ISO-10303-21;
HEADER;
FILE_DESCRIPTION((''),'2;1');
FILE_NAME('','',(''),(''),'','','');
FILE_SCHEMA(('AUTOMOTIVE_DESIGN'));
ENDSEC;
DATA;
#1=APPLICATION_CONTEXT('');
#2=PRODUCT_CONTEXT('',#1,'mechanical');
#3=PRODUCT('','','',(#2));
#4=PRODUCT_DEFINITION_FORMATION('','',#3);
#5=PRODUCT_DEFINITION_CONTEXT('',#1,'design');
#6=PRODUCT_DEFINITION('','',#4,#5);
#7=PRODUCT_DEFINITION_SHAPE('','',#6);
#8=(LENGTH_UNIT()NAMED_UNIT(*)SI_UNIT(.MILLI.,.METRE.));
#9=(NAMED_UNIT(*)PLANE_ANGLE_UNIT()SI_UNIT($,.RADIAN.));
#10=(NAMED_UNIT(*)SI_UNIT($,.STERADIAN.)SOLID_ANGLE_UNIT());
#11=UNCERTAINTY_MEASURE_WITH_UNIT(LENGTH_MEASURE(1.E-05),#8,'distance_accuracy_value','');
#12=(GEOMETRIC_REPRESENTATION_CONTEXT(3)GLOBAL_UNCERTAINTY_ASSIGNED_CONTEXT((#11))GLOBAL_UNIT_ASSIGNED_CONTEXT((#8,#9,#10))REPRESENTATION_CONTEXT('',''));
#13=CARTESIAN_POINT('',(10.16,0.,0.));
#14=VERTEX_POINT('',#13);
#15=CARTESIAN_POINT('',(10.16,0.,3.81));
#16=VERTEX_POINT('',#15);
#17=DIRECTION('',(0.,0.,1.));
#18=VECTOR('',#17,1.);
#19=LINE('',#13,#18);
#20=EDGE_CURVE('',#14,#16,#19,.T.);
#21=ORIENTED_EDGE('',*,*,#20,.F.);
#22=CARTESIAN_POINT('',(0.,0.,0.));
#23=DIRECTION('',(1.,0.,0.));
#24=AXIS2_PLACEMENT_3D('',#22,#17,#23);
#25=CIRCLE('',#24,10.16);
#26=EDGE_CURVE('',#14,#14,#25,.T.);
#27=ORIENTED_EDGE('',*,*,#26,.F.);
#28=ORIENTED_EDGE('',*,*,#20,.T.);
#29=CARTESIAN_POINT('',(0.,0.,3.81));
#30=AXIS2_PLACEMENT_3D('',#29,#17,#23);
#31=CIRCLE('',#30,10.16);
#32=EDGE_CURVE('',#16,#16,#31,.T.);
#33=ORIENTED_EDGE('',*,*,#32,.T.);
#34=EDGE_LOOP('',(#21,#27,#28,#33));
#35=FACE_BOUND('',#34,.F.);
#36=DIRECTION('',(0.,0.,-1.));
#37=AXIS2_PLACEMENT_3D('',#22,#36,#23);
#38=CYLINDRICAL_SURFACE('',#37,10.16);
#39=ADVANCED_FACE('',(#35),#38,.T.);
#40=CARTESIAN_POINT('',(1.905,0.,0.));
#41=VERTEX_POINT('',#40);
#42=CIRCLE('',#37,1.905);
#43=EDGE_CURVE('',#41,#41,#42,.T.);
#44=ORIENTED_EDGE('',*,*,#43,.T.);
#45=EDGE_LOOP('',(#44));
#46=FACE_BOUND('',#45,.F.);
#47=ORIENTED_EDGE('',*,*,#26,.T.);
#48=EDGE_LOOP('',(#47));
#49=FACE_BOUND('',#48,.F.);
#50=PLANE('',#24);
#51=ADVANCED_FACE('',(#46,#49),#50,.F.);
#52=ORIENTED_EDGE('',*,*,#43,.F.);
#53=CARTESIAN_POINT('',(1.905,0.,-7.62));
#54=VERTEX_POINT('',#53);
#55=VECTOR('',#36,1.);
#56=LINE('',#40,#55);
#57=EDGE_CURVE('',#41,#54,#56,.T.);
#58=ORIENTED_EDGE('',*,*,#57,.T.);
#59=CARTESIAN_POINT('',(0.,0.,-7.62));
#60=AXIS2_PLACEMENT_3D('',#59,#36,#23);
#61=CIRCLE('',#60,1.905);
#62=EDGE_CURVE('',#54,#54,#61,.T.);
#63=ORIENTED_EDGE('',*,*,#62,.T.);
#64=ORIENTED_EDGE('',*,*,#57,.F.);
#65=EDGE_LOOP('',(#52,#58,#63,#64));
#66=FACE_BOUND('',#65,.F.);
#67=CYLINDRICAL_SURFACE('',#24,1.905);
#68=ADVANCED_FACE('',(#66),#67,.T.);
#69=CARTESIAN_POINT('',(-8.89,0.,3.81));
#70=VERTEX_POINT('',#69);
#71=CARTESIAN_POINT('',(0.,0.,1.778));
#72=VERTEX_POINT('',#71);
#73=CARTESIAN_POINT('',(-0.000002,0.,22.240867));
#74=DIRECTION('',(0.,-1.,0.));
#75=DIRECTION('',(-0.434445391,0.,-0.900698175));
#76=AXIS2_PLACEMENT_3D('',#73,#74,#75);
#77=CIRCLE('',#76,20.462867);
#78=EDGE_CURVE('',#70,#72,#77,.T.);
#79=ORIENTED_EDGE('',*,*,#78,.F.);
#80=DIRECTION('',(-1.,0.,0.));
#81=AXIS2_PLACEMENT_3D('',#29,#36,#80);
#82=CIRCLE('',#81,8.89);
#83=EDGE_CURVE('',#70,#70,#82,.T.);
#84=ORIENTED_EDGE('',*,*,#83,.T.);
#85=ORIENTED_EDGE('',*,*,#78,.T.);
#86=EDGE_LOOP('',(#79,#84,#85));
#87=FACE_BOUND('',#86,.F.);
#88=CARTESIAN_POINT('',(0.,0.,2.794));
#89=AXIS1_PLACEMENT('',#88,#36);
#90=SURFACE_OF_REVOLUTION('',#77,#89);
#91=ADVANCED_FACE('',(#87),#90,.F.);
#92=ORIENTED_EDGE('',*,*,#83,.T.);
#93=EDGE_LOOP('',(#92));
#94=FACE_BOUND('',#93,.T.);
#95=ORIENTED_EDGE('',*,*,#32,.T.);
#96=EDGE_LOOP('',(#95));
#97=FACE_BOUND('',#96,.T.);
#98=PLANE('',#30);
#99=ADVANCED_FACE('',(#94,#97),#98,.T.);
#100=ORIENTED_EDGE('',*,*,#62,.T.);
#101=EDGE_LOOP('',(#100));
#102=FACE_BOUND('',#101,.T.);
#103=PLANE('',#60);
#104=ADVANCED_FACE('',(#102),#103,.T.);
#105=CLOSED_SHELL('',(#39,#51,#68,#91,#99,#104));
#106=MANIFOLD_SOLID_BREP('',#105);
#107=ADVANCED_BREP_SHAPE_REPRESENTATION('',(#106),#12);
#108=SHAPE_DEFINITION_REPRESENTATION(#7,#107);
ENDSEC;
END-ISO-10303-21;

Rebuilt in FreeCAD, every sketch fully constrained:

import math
import FreeCAD as App
import Part
import Sketcher
from FreeCAD import Vector
Q = App.Units.Quantity

doc = App.newDocument("Part")
body = doc.addObject("PartDesign::Body", "Body")

sketch1 = body.newObject("Sketcher::SketchObject", "Sketch")
sketch1.AttachmentSupport = (doc.getObject("XY_Plane"), [""])
sketch1.MapMode = "FlatFace"
sketch1.addGeometry(Part.Circle(Vector(0, 0, 0), Vector(0, 0, 1), 10.16), False)
sketch1.addConstraint([
    Sketcher.Constraint("Coincident", 0, 3, -1, 1),
    Sketcher.Constraint("Diameter", 0, Q("0.8 in")),
])
pad1 = body.newObject("PartDesign::Pad", "Pad")
pad1.Profile = sketch1
pad1.Length = Q("0.15 in")

sketch2 = body.newObject("Sketcher::SketchObject", "Sketch001")
sketch2.AttachmentSupport = (doc.getObject("XZ_Plane"), [""])
sketch2.MapMode = "FlatFace"
sketch2.addGeometry([
    Part.LineSegment(Vector(0, 3.81, 0), Vector(-8.89, 3.81, 0)),
    Part.ArcOfCircle(Part.Circle(Vector(-0.000002, 22.240867, 0), Vector(0, 0, 1), 20.462867), math.radians(-115.750009), math.radians(-89.999995)),
    Part.LineSegment(Vector(0, 1.778, 0), Vector(0, 3.81, 0)),
], False)
sketch2.addConstraint([
    Sketcher.Constraint("Coincident", 0, 2, 1, 1),
    Sketcher.Constraint("Coincident", 1, 2, 2, 1),
    Sketcher.Constraint("Coincident", 2, 2, 0, 1),
    Sketcher.Constraint("Horizontal", 0),
    Sketcher.Constraint("Vertical", 2),
    Sketcher.Constraint("PointOnObject", 1, 3, -2),
    Sketcher.Constraint("PointOnObject", 1, 2, -2),
    Sketcher.Constraint("DistanceX", 0, 2, 0, 1, Q("0.35 in")),
    Sketcher.Constraint("DistanceY", 2, 1, 2, 2, Q("0.08 in")),
    Sketcher.Constraint("DistanceY", -1, 1, 0, 2, Q("0.15 in")),
])
groove = body.newObject("PartDesign::Groove", "Groove")
groove.Profile = sketch2
groove.ReferenceAxis = (sketch2, ["V_Axis"])
groove.Angle = 360

sketch3 = body.newObject("Sketcher::SketchObject", "Sketch002")
sketch3.AttachmentSupport = (doc.getObject("XY_Plane"), [""])
sketch3.MapMode = "FlatFace"
sketch3.addGeometry(Part.Circle(Vector(0, 0, 0), Vector(0, 0, 1), 1.905), False)
sketch3.addConstraint([
    Sketcher.Constraint("Coincident", 0, 3, -1, 1),
    Sketcher.Constraint("Diameter", 0, Q("0.15 in")),
])
pad2 = body.newObject("PartDesign::Pad", "Pad001")
pad2.Profile = sketch3
pad2.Length = Q("0.3 in")
pad2.Reversed = True

doc.recompute()
